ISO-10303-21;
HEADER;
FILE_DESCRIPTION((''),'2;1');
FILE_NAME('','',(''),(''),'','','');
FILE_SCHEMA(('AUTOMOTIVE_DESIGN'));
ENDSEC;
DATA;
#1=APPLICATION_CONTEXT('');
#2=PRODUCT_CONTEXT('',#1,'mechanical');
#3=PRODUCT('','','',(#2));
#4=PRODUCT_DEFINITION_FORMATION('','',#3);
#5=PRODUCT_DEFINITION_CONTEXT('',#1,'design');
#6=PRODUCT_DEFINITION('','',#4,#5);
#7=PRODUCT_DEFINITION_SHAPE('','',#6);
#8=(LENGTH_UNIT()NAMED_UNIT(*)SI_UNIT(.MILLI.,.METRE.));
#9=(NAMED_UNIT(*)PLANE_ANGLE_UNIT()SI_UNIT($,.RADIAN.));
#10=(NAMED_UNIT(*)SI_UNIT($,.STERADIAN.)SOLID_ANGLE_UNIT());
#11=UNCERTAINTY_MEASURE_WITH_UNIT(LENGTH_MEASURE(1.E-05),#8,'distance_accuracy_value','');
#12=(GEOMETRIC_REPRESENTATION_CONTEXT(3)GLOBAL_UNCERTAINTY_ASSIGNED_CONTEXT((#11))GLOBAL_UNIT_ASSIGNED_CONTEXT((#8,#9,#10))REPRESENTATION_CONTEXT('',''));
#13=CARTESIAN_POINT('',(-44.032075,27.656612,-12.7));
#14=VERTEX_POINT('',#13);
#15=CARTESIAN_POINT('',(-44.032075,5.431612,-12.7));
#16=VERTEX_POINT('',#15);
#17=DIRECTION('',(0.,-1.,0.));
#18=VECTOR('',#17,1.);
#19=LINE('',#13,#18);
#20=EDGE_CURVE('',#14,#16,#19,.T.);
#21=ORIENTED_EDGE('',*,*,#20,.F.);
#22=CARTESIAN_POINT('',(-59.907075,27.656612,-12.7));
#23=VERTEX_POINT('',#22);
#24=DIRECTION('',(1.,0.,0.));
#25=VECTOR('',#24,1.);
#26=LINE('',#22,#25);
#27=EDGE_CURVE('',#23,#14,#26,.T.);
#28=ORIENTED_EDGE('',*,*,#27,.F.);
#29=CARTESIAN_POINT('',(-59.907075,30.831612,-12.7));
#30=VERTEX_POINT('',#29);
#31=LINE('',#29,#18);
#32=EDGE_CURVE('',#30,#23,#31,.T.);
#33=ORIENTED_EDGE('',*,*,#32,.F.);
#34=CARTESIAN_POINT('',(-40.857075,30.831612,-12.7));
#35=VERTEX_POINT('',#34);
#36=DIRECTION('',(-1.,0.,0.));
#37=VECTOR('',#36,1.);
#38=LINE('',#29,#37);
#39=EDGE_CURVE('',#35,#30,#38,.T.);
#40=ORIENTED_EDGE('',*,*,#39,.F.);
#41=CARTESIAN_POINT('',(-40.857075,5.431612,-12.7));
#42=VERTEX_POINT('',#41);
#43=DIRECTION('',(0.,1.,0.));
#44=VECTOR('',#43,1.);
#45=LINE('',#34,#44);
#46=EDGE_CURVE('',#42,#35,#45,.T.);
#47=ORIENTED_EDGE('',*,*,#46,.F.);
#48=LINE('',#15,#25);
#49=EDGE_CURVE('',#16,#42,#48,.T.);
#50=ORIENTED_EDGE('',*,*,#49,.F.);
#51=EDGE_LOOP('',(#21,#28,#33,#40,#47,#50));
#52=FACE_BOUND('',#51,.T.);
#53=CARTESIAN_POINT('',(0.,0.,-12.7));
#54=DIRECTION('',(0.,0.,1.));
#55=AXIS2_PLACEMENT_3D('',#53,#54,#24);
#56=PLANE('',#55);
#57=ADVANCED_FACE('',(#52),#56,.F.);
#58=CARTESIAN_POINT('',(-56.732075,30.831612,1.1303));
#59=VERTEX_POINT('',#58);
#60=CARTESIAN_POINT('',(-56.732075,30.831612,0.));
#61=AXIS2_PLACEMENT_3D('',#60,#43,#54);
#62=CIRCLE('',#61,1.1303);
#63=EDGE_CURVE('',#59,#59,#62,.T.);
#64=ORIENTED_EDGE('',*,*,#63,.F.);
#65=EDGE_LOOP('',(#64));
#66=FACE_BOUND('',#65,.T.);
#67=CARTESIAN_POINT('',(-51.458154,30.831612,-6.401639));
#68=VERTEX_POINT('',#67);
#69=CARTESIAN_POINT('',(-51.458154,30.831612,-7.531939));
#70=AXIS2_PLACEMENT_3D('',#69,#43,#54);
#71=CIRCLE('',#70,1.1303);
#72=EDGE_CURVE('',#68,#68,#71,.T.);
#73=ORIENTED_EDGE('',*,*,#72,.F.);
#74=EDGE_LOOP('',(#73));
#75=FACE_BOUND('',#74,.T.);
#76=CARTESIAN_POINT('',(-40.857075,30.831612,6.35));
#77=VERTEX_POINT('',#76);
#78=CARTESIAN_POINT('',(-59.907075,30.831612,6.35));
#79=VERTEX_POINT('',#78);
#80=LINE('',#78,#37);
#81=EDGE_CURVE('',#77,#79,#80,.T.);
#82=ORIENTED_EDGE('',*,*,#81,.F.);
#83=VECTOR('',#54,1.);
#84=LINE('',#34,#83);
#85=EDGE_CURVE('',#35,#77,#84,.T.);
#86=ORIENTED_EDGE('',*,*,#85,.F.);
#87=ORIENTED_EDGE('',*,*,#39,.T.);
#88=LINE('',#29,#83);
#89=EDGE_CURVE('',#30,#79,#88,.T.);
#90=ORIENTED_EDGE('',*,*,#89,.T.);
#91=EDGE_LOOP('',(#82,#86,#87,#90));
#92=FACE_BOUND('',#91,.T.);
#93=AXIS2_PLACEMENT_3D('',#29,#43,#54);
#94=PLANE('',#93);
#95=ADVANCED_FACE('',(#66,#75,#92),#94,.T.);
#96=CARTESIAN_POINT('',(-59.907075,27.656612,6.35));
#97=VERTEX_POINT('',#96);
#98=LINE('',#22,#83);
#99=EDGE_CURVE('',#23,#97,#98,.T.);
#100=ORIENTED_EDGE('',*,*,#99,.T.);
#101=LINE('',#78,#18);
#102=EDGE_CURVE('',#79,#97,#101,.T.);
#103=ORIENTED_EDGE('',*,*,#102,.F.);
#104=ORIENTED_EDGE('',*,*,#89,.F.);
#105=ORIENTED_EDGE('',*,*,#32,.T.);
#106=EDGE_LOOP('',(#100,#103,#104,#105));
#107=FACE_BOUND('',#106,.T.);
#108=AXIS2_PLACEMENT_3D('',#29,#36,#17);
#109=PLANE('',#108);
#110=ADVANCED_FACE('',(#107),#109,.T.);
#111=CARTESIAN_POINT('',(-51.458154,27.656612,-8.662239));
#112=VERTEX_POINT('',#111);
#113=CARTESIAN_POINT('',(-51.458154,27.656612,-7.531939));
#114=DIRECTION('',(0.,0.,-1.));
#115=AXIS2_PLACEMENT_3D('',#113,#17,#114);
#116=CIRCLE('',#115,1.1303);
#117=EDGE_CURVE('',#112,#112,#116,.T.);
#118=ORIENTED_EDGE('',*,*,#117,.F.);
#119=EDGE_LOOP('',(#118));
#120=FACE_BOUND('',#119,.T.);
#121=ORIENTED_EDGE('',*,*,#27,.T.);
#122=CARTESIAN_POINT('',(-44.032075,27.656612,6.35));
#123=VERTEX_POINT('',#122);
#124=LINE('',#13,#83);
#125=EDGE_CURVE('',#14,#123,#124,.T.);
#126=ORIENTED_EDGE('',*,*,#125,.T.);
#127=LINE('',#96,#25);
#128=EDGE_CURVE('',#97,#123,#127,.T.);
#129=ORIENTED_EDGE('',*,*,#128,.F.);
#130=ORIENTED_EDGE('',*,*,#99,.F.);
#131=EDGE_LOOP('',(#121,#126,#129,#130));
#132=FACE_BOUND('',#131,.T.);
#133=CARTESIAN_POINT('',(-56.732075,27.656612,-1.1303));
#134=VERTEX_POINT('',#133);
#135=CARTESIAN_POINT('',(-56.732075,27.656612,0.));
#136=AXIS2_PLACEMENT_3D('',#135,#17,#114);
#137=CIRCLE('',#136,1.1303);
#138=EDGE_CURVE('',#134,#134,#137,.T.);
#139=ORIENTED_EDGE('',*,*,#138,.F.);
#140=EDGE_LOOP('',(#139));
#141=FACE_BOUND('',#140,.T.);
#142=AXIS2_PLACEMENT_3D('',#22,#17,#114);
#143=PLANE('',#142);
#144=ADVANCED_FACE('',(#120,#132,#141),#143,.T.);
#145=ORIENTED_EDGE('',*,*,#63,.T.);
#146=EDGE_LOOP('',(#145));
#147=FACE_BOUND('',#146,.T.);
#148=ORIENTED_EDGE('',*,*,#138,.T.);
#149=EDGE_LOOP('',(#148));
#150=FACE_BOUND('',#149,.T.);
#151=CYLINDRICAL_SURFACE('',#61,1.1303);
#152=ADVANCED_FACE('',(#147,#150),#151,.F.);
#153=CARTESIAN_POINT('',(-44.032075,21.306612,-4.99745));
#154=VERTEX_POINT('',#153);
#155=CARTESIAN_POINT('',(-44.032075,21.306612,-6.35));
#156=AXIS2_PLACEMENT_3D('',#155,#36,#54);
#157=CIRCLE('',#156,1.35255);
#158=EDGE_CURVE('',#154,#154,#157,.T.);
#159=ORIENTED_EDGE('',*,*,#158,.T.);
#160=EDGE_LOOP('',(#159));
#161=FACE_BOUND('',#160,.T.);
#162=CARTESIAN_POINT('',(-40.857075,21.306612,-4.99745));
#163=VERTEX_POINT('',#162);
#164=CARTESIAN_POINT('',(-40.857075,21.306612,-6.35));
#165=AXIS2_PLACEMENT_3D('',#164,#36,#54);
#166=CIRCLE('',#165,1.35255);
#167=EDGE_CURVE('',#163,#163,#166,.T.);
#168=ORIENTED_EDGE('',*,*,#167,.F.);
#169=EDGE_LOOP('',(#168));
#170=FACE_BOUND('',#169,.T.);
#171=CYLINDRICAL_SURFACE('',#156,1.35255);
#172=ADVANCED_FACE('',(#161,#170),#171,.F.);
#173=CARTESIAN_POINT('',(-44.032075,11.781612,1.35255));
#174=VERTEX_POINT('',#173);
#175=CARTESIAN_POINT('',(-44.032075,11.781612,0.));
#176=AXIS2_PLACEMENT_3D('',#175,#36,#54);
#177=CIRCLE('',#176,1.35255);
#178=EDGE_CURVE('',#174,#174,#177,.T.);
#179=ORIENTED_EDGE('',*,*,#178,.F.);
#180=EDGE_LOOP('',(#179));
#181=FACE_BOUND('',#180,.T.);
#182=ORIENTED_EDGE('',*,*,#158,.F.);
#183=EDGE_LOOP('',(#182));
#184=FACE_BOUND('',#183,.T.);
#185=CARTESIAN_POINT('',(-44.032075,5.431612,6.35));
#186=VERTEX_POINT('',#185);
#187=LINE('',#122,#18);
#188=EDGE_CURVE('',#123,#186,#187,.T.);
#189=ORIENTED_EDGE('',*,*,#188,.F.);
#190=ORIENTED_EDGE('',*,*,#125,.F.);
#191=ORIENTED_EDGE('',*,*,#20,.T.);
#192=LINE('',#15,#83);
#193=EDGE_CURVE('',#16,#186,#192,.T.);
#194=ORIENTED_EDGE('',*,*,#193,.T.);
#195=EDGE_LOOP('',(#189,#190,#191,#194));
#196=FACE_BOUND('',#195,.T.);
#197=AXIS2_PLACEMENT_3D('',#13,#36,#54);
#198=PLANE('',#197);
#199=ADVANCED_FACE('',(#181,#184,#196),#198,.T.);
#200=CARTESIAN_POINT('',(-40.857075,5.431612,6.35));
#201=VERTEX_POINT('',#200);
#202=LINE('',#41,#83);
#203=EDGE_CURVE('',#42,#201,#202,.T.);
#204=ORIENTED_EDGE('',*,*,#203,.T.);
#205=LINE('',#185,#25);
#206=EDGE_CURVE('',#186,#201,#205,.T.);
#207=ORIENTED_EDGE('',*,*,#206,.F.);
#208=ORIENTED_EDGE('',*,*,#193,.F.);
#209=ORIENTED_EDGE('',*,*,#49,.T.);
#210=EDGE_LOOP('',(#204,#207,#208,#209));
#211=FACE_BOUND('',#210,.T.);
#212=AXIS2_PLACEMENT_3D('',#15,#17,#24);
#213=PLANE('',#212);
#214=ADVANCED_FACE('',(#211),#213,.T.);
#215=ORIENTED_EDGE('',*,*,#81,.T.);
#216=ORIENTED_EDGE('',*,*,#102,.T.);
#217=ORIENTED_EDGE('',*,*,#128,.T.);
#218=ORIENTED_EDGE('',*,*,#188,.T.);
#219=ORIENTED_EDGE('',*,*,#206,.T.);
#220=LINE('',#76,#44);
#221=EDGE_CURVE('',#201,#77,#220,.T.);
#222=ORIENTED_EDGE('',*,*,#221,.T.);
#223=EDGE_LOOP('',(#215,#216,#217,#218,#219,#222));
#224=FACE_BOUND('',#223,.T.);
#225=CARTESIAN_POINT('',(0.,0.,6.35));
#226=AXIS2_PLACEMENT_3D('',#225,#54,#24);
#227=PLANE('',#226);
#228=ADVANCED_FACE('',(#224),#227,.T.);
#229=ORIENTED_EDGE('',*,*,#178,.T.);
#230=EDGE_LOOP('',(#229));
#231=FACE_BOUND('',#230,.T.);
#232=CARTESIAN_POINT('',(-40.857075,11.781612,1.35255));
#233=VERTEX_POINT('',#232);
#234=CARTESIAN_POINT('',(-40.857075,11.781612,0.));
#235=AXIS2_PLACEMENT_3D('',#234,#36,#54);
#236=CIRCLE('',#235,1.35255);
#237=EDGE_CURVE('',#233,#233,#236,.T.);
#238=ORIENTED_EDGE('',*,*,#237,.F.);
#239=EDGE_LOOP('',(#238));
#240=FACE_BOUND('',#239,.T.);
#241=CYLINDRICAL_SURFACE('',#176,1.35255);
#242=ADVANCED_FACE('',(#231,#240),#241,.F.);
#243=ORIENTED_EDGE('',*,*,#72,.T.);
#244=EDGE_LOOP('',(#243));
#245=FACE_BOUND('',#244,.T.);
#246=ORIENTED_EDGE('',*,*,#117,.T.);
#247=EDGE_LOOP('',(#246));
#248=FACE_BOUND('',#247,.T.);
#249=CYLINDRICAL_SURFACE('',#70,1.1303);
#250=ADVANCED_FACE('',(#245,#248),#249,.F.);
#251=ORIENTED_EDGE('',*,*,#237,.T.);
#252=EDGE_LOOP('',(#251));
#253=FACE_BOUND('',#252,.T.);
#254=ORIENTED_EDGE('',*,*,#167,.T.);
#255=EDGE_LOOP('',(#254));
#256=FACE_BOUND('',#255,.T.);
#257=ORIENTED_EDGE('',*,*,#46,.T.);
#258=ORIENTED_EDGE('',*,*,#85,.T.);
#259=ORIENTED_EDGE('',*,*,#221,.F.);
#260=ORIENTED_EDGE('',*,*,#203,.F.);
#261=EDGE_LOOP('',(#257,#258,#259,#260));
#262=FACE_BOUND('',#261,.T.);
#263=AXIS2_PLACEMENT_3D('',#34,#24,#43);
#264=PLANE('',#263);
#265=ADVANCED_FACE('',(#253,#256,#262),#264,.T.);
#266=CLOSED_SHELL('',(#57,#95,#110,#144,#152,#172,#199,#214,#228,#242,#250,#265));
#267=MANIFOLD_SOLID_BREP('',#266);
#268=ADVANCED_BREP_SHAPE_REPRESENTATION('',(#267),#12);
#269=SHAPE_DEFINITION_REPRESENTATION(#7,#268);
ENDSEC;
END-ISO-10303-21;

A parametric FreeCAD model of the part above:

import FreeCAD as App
import Part
import Sketcher
Q = App.Units.Quantity


def add_polygon(sketch, points):
    """Adds a closed chain of lines whose ends are joined by coincident constraints."""
    first, n = sketch.GeometryCount, len(points)
    for a, b in zip(points, points[1:] + points[:1]):
        sketch.addGeometry(Part.LineSegment(App.Vector(*a, 0), App.Vector(*b, 0)), False)
    for i in range(n):
        sketch.addConstraint(Sketcher.Constraint("Coincident", first + i, 2, first + (i + 1) % n, 1))

doc = App.newDocument("Part")
body = doc.addObject("PartDesign::Body", "Body")

# Sketch on XY plane
sketch1 = doc.addObject("Sketcher::SketchObject", "Sketch")
body.addObject(sketch1)
sketch1.AttachmentSupport = (doc.XY_Plane, [""])
sketch1.MapMode = "FlatFace"
add_polygon(sketch1, [(-40.9, 30.8), (-59.9, 30.8), (-59.9, 27.7), (-44, 27.7), (-44, 5.4), (-40.9, 5.4)])  # lines 0-5
sketch1.addConstraint([
    Sketcher.Constraint("Horizontal", 0),
    Sketcher.Constraint("Vertical", 1),
    Sketcher.Constraint("Horizontal", 2),
    Sketcher.Constraint("Vertical", 3),
    Sketcher.Constraint("Horizontal", 4),
    Sketcher.Constraint("Vertical", 5),
    Sketcher.Constraint("Equal", 4, 1),
    Sketcher.Constraint("DistanceY", 5, 1, 5, 2, Q("1 in")),
    Sketcher.Constraint("DistanceX", 0, 2, 0, 1, Q("0.75 in")),
    Sketcher.Constraint("DistanceX", 2, 1, 2, 2, Q("0.625 in")),
    Sketcher.Constraint("DistanceY", -1, 1, 0, 2, Q("30.831612 mm")),
    Sketcher.Constraint("DistanceX", 0, 2, -1, 1, Q("59.907075 mm")),
])
pad1 = doc.addObject("PartDesign::Pad", "Pad")
body.addObject(pad1)
pad1.Profile = sketch1
pad1.Type = "TwoLengths"
pad1.Length = Q("0.25 in")
pad1.Length2 = Q("0.5 in")

# Sketch on YZ plane
sketch2 = doc.addObject("Sketcher::SketchObject", "Sketch001")
body.addObject(sketch2)
sketch2.AttachmentSupport = (doc.YZ_Plane, [""])
sketch2.MapMode = "FlatFace"
sketch2.AttachmentOffset = App.Placement(App.Vector(0, 0, -44.032075), App.Rotation())
sketch2.addGeometry([
    Part.Circle(App.Vector(11.8, 0, 0), App.Vector(0, 0, 1), 1.4),
    Part.Circle(App.Vector(21.3, -6.3, 0), App.Vector(0, 0, 1), 1.4),
], False)
sketch2.addConstraint([
    Sketcher.Constraint("Equal", 0, 1),
    Sketcher.Constraint("PointOnObject", 0, 3, -1),
    Sketcher.Constraint("Diameter", 0, Q("0.1065 in")),
    Sketcher.Constraint("DistanceY", 1, 3, -1, 1, Q("0.25 in")),
    Sketcher.Constraint("DistanceX", 0, 3, 1, 3, Q("0.375 in")),
    Sketcher.Constraint("DistanceX", -1, 1, 0, 3, Q("11.781612 mm")),
])
doc.recompute()
hole = doc.addObject("PartDesign::Hole", "Hole")
body.addObject(hole)
hole.Profile = sketch2
hole.ThreadType = "None"
hole.Diameter = Q("0.1065 in")
hole.DepthType = "ThroughAll"
hole.Reversed = True

# Sketch on XZ plane
sketch3 = doc.addObject("Sketcher::SketchObject", "Sketch002")
body.addObject(sketch3)
sketch3.AttachmentSupport = (doc.XZ_Plane, [""])
sketch3.MapMode = "FlatFace"
sketch3.AttachmentOffset = App.Placement(App.Vector(0, 0, -30.831612), App.Rotation())
sketch3.addGeometry([
    Part.Circle(App.Vector(-51.5, -7.5, 0), App.Vector(0, 0, 1), 1.1),
    Part.Circle(App.Vector(-56.7, 0, 0), App.Vector(0, 0, 1), 1.1),
], False)
sketch3.addConstraint([
    Sketcher.Constraint("Equal", 0, 1),
    Sketcher.Constraint("PointOnObject", 1, 3, -1),
    Sketcher.Constraint("Diameter", 0, Q("0.089 in")),
    Sketcher.Constraint("DistanceY", 0, 3, -1, 1, Q("7.531939 mm")),
    Sketcher.Constraint("DistanceX", 1, 3, 0, 3, Q("5.273921 mm")),
    Sketcher.Constraint("DistanceX", 0, 3, -1, 1, Q("51.458154 mm")),
])
doc.recompute()
hole2 = doc.addObject("PartDesign::Hole", "Hole001")
body.addObject(hole2)
hole2.Profile = sketch3
hole2.ThreadType = "None"
hole2.Diameter = Q("0.089 in")
hole2.DepthType = "Dimension"
hole2.Depth = Q("0.13 in")
hole2.DrillPoint = "Angled"
hole2.DrillPointAngle = 118
hole2.Reversed = True

doc.recompute()
